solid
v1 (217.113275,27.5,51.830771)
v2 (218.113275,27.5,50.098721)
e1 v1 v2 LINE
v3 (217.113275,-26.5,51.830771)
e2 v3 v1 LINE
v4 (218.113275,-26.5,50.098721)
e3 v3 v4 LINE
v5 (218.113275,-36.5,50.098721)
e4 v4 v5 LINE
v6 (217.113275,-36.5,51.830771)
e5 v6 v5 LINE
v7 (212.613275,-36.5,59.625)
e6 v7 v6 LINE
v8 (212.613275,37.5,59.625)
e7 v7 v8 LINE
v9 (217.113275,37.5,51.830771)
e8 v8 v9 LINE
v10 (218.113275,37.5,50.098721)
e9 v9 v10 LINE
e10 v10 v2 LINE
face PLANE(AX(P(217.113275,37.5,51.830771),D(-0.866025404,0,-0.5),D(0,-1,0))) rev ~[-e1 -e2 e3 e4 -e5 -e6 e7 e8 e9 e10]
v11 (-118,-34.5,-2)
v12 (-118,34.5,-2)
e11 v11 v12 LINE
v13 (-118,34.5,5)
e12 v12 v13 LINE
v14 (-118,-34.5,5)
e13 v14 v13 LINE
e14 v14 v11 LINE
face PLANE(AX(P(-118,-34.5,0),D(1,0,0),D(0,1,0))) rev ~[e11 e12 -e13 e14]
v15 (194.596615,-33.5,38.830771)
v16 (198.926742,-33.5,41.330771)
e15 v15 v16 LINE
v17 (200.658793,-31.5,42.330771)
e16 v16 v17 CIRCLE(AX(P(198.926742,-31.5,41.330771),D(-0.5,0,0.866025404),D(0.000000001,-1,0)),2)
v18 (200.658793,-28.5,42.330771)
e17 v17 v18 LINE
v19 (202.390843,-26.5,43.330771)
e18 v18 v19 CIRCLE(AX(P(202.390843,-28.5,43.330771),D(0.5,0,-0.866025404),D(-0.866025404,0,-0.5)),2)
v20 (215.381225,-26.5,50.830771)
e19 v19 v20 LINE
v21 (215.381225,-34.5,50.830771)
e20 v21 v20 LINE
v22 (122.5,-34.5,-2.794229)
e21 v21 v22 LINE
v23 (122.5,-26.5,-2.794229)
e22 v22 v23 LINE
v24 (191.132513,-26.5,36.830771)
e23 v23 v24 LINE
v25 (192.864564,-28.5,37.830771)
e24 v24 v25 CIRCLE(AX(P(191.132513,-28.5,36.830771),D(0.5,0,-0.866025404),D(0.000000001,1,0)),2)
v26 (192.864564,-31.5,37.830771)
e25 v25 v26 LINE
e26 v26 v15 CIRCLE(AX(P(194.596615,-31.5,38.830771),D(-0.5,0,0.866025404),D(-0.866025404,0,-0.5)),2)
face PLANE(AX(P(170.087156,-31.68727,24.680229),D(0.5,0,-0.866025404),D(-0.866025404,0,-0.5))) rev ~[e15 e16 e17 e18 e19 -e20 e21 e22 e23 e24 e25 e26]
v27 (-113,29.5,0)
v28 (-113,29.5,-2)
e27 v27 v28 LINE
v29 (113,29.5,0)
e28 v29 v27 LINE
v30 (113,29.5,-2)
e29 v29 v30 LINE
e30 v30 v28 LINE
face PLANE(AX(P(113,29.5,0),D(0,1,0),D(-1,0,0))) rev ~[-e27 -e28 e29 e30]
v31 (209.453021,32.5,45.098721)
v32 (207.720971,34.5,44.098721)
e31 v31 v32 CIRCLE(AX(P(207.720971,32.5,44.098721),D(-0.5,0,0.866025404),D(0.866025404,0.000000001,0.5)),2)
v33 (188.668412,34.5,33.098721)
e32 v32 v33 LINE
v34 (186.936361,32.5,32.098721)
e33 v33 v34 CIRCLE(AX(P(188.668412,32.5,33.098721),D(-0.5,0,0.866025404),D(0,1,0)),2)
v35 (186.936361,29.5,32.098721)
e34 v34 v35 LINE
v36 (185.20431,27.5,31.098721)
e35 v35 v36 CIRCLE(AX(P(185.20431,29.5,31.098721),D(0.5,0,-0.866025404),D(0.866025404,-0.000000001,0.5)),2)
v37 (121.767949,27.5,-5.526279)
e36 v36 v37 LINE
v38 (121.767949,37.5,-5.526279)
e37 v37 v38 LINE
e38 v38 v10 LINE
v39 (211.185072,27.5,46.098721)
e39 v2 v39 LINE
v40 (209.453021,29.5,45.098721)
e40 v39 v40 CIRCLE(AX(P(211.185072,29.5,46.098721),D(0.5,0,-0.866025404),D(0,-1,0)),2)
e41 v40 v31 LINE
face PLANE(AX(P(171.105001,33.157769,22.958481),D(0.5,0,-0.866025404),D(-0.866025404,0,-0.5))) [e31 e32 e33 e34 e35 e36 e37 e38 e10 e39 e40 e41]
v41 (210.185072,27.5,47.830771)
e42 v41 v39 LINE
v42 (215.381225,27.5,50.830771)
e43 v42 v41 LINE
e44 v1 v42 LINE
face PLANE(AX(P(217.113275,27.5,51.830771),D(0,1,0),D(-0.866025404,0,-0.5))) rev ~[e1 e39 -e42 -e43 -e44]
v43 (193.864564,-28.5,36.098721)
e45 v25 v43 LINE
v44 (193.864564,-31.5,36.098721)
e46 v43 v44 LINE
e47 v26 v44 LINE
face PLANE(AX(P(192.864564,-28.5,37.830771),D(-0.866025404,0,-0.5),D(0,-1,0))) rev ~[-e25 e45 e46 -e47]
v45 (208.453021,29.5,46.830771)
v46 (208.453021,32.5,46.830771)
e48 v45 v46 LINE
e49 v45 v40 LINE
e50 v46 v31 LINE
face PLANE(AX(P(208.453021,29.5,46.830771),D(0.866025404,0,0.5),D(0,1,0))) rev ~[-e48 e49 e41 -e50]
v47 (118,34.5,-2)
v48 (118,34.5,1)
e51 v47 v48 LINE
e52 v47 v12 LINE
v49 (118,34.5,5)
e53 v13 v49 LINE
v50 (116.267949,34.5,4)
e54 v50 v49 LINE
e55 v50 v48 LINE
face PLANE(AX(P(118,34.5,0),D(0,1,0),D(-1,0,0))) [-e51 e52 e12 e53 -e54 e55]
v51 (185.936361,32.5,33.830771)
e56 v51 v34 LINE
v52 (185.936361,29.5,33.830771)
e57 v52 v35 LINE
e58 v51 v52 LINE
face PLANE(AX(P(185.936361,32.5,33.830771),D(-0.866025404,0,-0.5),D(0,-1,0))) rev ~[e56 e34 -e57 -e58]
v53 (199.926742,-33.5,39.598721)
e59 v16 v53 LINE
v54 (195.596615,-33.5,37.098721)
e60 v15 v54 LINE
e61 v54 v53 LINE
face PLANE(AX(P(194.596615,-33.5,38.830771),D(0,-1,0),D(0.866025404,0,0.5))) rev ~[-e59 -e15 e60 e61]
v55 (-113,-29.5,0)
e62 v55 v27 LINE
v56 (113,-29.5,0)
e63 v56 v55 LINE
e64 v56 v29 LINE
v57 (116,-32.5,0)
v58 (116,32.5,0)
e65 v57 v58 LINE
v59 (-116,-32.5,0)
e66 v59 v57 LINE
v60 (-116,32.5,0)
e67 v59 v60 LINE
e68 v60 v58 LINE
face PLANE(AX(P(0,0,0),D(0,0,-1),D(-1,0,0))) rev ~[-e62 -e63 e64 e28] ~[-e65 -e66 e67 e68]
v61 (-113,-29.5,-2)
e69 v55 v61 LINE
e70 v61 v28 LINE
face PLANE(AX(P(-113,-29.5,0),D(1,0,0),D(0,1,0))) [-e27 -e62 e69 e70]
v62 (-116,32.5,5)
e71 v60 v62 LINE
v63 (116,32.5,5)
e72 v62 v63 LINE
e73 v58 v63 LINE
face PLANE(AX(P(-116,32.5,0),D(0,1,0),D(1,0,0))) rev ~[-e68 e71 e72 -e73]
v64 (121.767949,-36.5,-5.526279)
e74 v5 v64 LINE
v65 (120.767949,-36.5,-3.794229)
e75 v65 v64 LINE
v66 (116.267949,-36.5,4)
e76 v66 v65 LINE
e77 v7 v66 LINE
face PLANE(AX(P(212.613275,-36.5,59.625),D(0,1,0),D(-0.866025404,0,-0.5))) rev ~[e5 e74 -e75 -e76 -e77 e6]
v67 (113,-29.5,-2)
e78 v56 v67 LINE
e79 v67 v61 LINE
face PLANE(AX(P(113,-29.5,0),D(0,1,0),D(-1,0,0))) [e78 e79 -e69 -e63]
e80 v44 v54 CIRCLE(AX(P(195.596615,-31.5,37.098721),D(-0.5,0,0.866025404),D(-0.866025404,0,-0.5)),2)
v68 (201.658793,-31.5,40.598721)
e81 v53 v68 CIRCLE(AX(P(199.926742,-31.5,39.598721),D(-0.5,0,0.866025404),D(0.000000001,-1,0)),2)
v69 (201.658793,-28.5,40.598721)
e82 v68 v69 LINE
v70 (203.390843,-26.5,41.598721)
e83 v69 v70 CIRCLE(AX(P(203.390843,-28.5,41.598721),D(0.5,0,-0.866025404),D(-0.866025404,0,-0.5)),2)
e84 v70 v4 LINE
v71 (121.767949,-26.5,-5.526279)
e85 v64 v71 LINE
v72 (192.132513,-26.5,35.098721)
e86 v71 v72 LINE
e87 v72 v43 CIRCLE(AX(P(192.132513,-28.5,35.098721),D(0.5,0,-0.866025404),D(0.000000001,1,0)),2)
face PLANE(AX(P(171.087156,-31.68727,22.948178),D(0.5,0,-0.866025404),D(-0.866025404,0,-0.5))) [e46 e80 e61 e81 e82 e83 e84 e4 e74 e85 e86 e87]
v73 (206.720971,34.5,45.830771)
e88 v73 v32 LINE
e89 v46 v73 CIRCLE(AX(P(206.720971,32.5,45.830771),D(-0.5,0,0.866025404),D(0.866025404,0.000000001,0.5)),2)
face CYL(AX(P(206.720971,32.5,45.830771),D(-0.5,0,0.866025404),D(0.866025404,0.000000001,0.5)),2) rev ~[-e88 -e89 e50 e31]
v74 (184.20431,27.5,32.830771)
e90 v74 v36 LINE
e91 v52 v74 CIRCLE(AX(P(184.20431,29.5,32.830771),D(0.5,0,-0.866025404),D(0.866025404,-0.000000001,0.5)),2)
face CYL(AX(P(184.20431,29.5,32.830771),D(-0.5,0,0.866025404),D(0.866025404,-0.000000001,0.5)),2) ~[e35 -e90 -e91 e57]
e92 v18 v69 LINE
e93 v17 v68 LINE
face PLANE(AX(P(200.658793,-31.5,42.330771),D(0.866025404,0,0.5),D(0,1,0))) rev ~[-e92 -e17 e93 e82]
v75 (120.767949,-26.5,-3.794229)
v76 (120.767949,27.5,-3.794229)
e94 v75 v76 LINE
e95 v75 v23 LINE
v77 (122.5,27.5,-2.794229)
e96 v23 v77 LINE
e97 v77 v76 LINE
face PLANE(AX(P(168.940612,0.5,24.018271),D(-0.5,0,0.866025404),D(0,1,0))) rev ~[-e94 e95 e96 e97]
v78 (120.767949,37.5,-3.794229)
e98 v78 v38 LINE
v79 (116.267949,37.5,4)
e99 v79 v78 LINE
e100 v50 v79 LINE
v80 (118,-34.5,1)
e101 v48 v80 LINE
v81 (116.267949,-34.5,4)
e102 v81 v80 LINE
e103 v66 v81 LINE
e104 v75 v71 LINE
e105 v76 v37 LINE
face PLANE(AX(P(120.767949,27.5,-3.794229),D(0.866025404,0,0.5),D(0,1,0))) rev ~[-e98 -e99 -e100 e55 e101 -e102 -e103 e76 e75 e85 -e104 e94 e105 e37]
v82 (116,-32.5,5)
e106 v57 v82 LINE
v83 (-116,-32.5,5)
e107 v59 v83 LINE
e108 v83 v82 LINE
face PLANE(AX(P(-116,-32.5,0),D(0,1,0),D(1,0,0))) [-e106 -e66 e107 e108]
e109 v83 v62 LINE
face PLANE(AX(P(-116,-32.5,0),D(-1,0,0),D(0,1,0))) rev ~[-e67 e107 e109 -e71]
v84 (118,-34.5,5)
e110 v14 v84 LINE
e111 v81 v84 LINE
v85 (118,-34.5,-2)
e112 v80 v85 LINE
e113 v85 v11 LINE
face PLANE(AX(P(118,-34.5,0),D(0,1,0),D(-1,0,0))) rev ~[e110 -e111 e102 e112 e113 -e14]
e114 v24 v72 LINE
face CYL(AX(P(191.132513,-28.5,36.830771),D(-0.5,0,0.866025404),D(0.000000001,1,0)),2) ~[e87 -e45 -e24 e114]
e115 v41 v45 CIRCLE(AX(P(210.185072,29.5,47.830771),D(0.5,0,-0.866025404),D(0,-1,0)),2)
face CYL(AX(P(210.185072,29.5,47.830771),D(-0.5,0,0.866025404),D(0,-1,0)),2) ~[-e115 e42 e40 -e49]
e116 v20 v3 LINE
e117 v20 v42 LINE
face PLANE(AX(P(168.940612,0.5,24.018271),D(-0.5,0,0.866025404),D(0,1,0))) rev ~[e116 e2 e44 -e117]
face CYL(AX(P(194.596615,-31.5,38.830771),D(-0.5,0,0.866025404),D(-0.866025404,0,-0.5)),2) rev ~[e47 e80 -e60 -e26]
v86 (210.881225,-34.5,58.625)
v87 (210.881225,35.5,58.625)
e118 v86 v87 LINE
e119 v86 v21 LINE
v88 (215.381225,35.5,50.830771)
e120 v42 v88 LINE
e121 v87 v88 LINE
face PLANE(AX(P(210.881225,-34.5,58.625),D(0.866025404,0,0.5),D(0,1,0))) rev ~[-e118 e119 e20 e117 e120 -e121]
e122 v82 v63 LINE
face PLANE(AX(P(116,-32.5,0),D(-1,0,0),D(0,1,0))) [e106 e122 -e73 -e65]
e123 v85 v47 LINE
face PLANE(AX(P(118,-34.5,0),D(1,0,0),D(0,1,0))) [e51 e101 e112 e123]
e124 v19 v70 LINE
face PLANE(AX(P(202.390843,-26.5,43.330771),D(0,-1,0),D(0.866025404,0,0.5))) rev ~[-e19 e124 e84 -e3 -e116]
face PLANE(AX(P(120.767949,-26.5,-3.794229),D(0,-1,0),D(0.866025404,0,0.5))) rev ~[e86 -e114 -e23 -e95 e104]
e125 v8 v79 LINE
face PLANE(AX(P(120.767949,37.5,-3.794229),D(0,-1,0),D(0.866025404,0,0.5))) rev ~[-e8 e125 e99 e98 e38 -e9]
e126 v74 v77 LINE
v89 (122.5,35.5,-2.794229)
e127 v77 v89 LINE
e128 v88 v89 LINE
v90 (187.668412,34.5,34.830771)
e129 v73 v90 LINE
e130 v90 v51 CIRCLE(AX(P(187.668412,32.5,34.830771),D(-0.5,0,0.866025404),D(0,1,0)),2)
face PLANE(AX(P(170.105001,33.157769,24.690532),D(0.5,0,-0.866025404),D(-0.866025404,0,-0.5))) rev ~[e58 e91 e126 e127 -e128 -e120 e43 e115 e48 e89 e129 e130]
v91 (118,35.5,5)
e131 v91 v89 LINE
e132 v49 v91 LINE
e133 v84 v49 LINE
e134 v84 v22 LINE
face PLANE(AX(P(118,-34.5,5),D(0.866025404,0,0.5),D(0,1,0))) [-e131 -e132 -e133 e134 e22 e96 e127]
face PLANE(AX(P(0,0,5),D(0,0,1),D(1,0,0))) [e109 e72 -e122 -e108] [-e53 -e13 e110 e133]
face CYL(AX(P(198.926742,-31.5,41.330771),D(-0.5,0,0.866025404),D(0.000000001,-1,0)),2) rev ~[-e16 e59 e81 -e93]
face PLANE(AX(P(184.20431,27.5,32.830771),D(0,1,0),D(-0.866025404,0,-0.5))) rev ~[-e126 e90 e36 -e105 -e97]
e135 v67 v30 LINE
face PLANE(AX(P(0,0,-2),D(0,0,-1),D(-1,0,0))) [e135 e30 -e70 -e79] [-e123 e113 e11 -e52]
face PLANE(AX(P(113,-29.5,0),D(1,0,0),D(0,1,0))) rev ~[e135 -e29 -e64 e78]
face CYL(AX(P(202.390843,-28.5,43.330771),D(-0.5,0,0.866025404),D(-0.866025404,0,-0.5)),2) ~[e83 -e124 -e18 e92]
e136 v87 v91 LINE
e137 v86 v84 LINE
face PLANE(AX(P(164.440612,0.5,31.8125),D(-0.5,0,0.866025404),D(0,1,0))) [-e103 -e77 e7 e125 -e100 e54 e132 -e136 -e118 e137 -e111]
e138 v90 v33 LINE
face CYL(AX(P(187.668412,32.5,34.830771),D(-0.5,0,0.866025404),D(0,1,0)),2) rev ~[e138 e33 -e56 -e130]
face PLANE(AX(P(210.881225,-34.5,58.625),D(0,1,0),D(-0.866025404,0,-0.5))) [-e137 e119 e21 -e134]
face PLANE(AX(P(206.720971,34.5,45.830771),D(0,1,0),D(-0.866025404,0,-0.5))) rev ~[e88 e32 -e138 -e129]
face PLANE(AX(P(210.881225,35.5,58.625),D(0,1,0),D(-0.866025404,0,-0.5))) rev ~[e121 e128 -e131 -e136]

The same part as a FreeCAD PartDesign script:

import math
import FreeCAD as App
import Part
import Sketcher

V = App.Vector

doc = App.newDocument("Part")
body = doc.addObject("PartDesign::Body", "Body")

# Sketch on XY plane
sketch1 = body.newObject("Sketcher::SketchObject", "Sketch")
sketch1.AttachmentSupport = (doc.getObject("XY_Plane"), [""])
sketch1.MapMode = "FlatFace"
sketch1.addGeometry([
    Part.LineSegment(V(-118, 34, 0), V(-118, -34, 0)),  # 0
    Part.LineSegment(V(-118, -34, 0), V(118, -34, 0)),  # 1
    Part.LineSegment(V(118, -34, 0), V(118, 34, 0)),  # 2
    Part.LineSegment(V(118, 34, 0), V(-118, 34, 0)),  # 3
    Part.LineSegment(V(116, -32, 0), V(-116, -32, 0)),  # 4
    Part.LineSegment(V(-116, -32, 0), V(-116, 32, 0)),  # 5
    Part.LineSegment(V(-116, 32, 0), V(116, 32, 0)),  # 6
    Part.LineSegment(V(116, 32, 0), V(116, -32, 0)),  # 7
], False)
sketch1.addConstraint([
    Sketcher.Constraint("Coincident", 0, 2, 1, 1),
    Sketcher.Constraint("Coincident", 1, 2, 2, 1),
    Sketcher.Constraint("Coincident", 2, 2, 3, 1),
    Sketcher.Constraint("Coincident", 3, 2, 0, 1),
    Sketcher.Constraint("Coincident", 4, 2, 5, 1),
    Sketcher.Constraint("Coincident", 5, 2, 6, 1),
    Sketcher.Constraint("Coincident", 6, 2, 7, 1),
    Sketcher.Constraint("Coincident", 7, 2, 4, 1),
    Sketcher.Constraint("Vertical", 0),
    Sketcher.Constraint("Horizontal", 1),
    Sketcher.Constraint("Vertical", 2),
    Sketcher.Constraint("Horizontal", 3),
    Sketcher.Constraint("Horizontal", 4),
    Sketcher.Constraint("Vertical", 5),
    Sketcher.Constraint("Horizontal", 6),
    Sketcher.Constraint("Vertical", 7),
    Sketcher.Constraint("Symmetric", 0, 2, 2, 2, -1, 1),
    Sketcher.Constraint("Symmetric", 4, 2, 6, 2, -1, 1),
    Sketcher.Constraint("DistanceX", 1, 1, 1, 2, 236.0),
    Sketcher.Constraint("DistanceX", 4, 2, 4, 1, 232.0),
    Sketcher.Constraint("DistanceY", 0, 2, 0, 1, 69.0),
    Sketcher.Constraint("DistanceY", 5, 1, 5, 2, 65.0),
])
pad1 = body.newObject("PartDesign::Pad", "Pad")
pad1.Profile = sketch1
pad1.Length = 5

# Sketch on XY plane
sketch2 = body.newObject("Sketcher::SketchObject", "Sketch001")
sketch2.AttachmentSupport = (doc.getObject("XY_Plane"), [""])
sketch2.MapMode = "FlatFace"
sketch2.addGeometry([
    Part.LineSegment(V(118, 34, 0), V(118, -34, 0)),  # 0
    Part.LineSegment(V(118, -34, 0), V(-118, -34, 0)),  # 1
    Part.LineSegment(V(-118, -34, 0), V(-118, 34, 0)),  # 2
    Part.LineSegment(V(-118, 34, 0), V(118, 34, 0)),  # 3
    Part.LineSegment(V(-113, -30, 0), V(113, -30, 0)),  # 4
    Part.LineSegment(V(113, -30, 0), V(113, 30, 0)),  # 5
    Part.LineSegment(V(113, 30, 0), V(-113, 30, 0)),  # 6
    Part.LineSegment(V(-113, 30, 0), V(-113, -30, 0)),  # 7
], False)
sketch2.addConstraint([
    Sketcher.Constraint("Coincident", 0, 2, 1, 1),
    Sketcher.Constraint("Coincident", 1, 2, 2, 1),
    Sketcher.Constraint("Coincident", 2, 2, 3, 1),
    Sketcher.Constraint("Coincident", 3, 2, 0, 1),
    Sketcher.Constraint("Coincident", 4, 2, 5, 1),
    Sketcher.Constraint("Coincident", 5, 2, 6, 1),
    Sketcher.Constraint("Coincident", 6, 2, 7, 1),
    Sketcher.Constraint("Coincident", 7, 2, 4, 1),
    Sketcher.Constraint("Vertical", 0),
    Sketcher.Constraint("Horizontal", 1),
    Sketcher.Constraint("Vertical", 2),
    Sketcher.Constraint("Horizontal", 3),
    Sketcher.Constraint("Horizontal", 4),
    Sketcher.Constraint("Vertical", 5),
    Sketcher.Constraint("Horizontal", 6),
    Sketcher.Constraint("Vertical", 7),
    Sketcher.Constraint("Symmetric", 0, 2, 2, 2, -1, 1),
    Sketcher.Constraint("Symmetric", 4, 2, 6, 2, -1, 1),
    Sketcher.Constraint("DistanceX", 1, 2, 1, 1, 236.0),
    Sketcher.Constraint("DistanceX", 4, 1, 4, 2, 226.0),
    Sketcher.Constraint("DistanceY", 0, 2, 0, 1, 69.0),
    Sketcher.Constraint("DistanceY", 5, 1, 5, 2, 59.0),
])
pad2 = body.newObject("PartDesign::Pad", "Pad001")
pad2.Profile = sketch2
pad2.Length = 2
pad2.Reversed = True

# Sketch on an angled plane
sketch3 = body.newObject("Sketcher::SketchObject", "Sketch002")
sketch3.Placement = App.Placement(V(27.334936, 0, -47.345499), App.Rotation(V(0, 1, 0), V(-0.866025404, 0, -0.5), V(-0.5, 0, 0.866025404), "ZXY"))
sketch3.addGeometry([
    Part.LineSegment(V(-36, -103, 0), V(-36, -214, 0)),  # 0
    Part.LineSegment(V(-36, -214, 0), V(38, -214, 0)),  # 1
    Part.LineSegment(V(38, -214, 0), V(38, -103, 0)),  # 2
    Part.LineSegment(V(38, -103, 0), V(-36, -103, 0)),  # 3
    Part.LineSegment(V(36, -212, 0), V(-34, -212, 0)),  # 4
    Part.LineSegment(V(-34, -212, 0), V(-34, -105, 0)),  # 5
    Part.LineSegment(V(-34, -105, 0), V(36, -105, 0)),  # 6
    Part.LineSegment(V(36, -105, 0), V(36, -212, 0)),  # 7
], False)
sketch3.addConstraint([
    Sketcher.Constraint("Coincident", 0, 2, 1, 1),
    Sketcher.Constraint("Coincident", 1, 2, 2, 1),
    Sketcher.Constraint("Coincident", 2, 2, 3, 1),
    Sketcher.Constraint("Coincident", 3, 2, 0, 1),
    Sketcher.Constraint("Coincident", 4, 2, 5, 1),
    Sketcher.Constraint("Coincident", 5, 2, 6, 1),
    Sketcher.Constraint("Coincident", 6, 2, 7, 1),
    Sketcher.Constraint("Coincident", 7, 2, 4, 1),
    Sketcher.Constraint("Vertical", 0),
    Sketcher.Constraint("Horizontal", 1),
    Sketcher.Constraint("Vertical", 2),
    Sketcher.Constraint("Horizontal", 3),
    Sketcher.Constraint("Horizontal", 4),
    Sketcher.Constraint("Vertical", 5),
    Sketcher.Constraint("Horizontal", 6),
    Sketcher.Constraint("Vertical", 7),
    Sketcher.Constraint("DistanceX", 1, 1, 1, 2, 74.0),
    Sketcher.Constraint("DistanceX", 4, 2, 4, 1, 70.0),
    Sketcher.Constraint("DistanceX", 0, 2, 4, 2, 2.0),
    Sketcher.Constraint("DistanceY", 0, 2, 4, 2, 2.0),
    Sketcher.Constraint("DistanceY", 5, 2, 3, 2, 2.0),
    Sketcher.Constraint("DistanceY", 0, 2, 0, 1, 111.25),
    Sketcher.Constraint("DistanceX", 0, 2, -1, 1, 36.5),
    Sketcher.Constraint("DistanceY", 0, 2, -1, 1, 213.940998),
])
pad3 = body.newObject("PartDesign::Pad", "Pad002")
pad3.Profile = sketch3
pad3.Length = 9
pad3.Reversed = True

# Sketch on an angled plane
sketch4 = body.newObject("Sketcher::SketchObject", "Sketch003")
sketch4.Placement = App.Placement(V(31.834936, 0, -55.139727), App.Rotation(V(-0.866025404, 0, -0.5), V(0, 1, 0), V(0.5, 0, -0.866025404), "ZXY"))
sketch4.addGeometry([
    Part.LineSegment(V(-213.9, 27.5, 0), V(-205.9, 27.5, 0)),  # 0
    Part.ArcOfCircle(Part.Circle(V(-205.9, 29.5, 0), V(0, 0, 1), 2), math.radians(-90), math.radians(0)),  # 1
    Part.LineSegment(V(-203.9, 29.5, 0), V(-203.9, 32.5, 0)),  # 2
    Part.ArcOfCircle(Part.Circle(V(-201.9, 32.5, 0), V(0, 0, 1), 2), math.radians(90), math.radians(180)),  # 3
    Part.LineSegment(V(-201.9, 34.5, 0), V(-179.9, 34.5, 0)),  # 4
    Part.ArcOfCircle(Part.Circle(V(-179.9, 32.5, 0), V(0, 0, 1), 2), math.radians(0), math.radians(90)),  # 5
    Part.LineSegment(V(-177.9, 32.5, 0), V(-177.9, 29.5, 0)),  # 6
    Part.ArcOfCircle(Part.Circle(V(-175.9, 29.5, 0), V(0, 0, 1), 2), math.radians(-180), math.radians(-90)),  # 7
    Part.LineSegment(V(-175.9, 27.5, 0), V(-102.7, 27.5, 0)),  # 8
    Part.LineSegment(V(-102.7, 27.5, 0), V(-102.7, 37.5, 0)),  # 9
    Part.LineSegment(V(-102.7, 37.5, 0), V(-213.9, 37.5, 0)),  # 10
    Part.LineSegment(V(-213.9, 37.5, 0), V(-213.9, 27.5, 0)),  # 11
    Part.LineSegment(V(-102.7, -36.5, 0), V(-102.7, -26.5, 0)),  # 12
    Part.LineSegment(V(-102.7, -26.5, 0), V(-183.9, -26.5, 0)),  # 13
    Part.ArcOfCircle(Part.Circle(V(-183.9, -28.5, 0), V(0, 0, 1), 2), math.radians(90), math.radians(180)),  # 14
    Part.LineSegment(V(-185.9, -28.5, 0), V(-185.9, -31.5, 0)),  # 15
    Part.ArcOfCircle(Part.Circle(V(-187.9, -31.5, 0), V(0, 0, 1), 2), math.radians(-90), math.radians(0)),  # 16
    Part.LineSegment(V(-187.9, -33.5, 0), V(-192.9, -33.5, 0)),  # 17
    Part.ArcOfCircle(Part.Circle(V(-192.9, -31.5, 0), V(0, 0, 1), 2), math.radians(-180), math.radians(-90)),  # 18
    Part.LineSegment(V(-194.9, -31.5, 0), V(-194.9, -28.5, 0)),  # 19
    Part.ArcOfCircle(Part.Circle(V(-196.9, -28.5, 0), V(0, 0, 1), 2), math.radians(0), math.radians(90)),  # 20
    Part.LineSegment(V(-196.9, -26.5, 0), V(-213.9, -26.5, 0)),  # 21
    Part.LineSegment(V(-213.9, -26.5, 0), V(-213.9, -36.5, 0)),  # 22
    Part.LineSegment(V(-213.9, -36.5, 0), V(-102.7, -36.5, 0)),  # 23
], False)
sketch4.addConstraint([
    Sketcher.Constraint("Tangent", 0, 2, 1, 1),
    Sketcher.Constraint("Tangent", 1, 2, 2, 1),
    Sketcher.Constraint("Tangent", 2, 2, 3, 2),
    Sketcher.Constraint("Tangent", 3, 1, 4, 1),
    Sketcher.Constraint("Tangent", 4, 2, 5, 2),
    Sketcher.Constraint("Tangent", 5, 1, 6, 1),
    Sketcher.Constraint("Tangent", 6, 2, 7, 1),
    Sketcher.Constraint("Tangent", 7, 2, 8, 1),
    Sketcher.Constraint("Coincident", 8, 2, 9, 1),
    Sketcher.Constraint("Coincident", 9, 2, 10, 1),
    Sketcher.Constraint("Coincident", 10, 2, 11, 1),
    Sketcher.Constraint("Coincident", 11, 2, 0, 1),
    Sketcher.Constraint("Coincident", 12, 2, 13, 1),
    Sketcher.Constraint("Tangent", 13, 2, 14, 1),
    Sketcher.Constraint("Tangent", 14, 2, 15, 1),
    Sketcher.Constraint("Tangent", 15, 2, 16, 2),
    Sketcher.Constraint("Tangent", 16, 1, 17, 1),
    Sketcher.Constraint("Tangent", 17, 2, 18, 2),
    Sketcher.Constraint("Tangent", 18, 1, 19, 1),
    Sketcher.Constraint("Tangent", 19, 2, 20, 1),
    Sketcher.Constraint("Tangent", 20, 2, 21, 1),
    Sketcher.Constraint("Coincident", 21, 2, 22, 1),
    Sketcher.Constraint("Coincident", 22, 2, 23, 1),
    Sketcher.Constraint("Coincident", 23, 2, 12, 1),
    Sketcher.Constraint("Horizontal", 0),
    Sketcher.Constraint("Vertical", 2),
    Sketcher.Constraint("Horizontal", 4),
    Sketcher.Constraint("Vertical", 6),
    Sketcher.Constraint("Horizontal", 8),
    Sketcher.Constraint("Vertical", 9),
    Sketcher.Constraint("Horizontal", 10),
    Sketcher.Constraint("Vertical", 11),
    Sketcher.Constraint("Vertical", 12),
    Sketcher.Constraint("Horizontal", 13),
    Sketcher.Constraint("Vertical", 15),
    Sketcher.Constraint("Horizontal", 17),
    Sketcher.Constraint("Vertical", 19),
    Sketcher.Constraint("Horizontal", 21),
    Sketcher.Constraint("Vertical", 22),
    Sketcher.Constraint("Horizontal", 23),
    Sketcher.Constraint("Equal", 1, 3),
    Sketcher.Constraint("Equal", 3, 5),
    Sketcher.Constraint("Equal", 5, 7),
    Sketcher.Constraint("Equal", 7, 14),
    Sketcher.Constraint("Equal", 14, 16),
    Sketcher.Constraint("Equal", 16, 18),
    Sketcher.Constraint("Equal", 18, 20),
    Sketcher.Constraint("Horizontal", 1, 3, 7, 3),
    Sketcher.Constraint("Horizontal", 14, 3, 20, 3),
    Sketcher.Constraint("Vertical", 9, 2, 12, 2),
    Sketcher.Constraint("Vertical", 11, 2, 21, 2),
    Sketcher.Constraint("Equal", 11, 12),
    Sketcher.Constraint("Equal", 6, 15),
    Sketcher.Constraint("Radius", 1, 2.0),
    Sketcher.Constraint("DistanceX", 0, 1, 0, 2, 8.0),
    Sketcher.Constraint("DistanceX", 4, 1, 4, 2, 22.0),
    Sketcher.Constraint("DistanceX", 17, 2, 17, 1, 5.0),
    Sketcher.Constraint("DistanceX", 21, 2, 21, 1, 17.0),
    Sketcher.Constraint("DistanceY", 2, 1, 2, 2, 3.0),
    Sketcher.Constraint("DistanceY", 9, 1, 9, 2, 10.0),
    Sketcher.Constraint("DistanceY", 14, 3, 7, 3, 58.0),
    Sketcher.Constraint("DistanceX", 8, 1, 8, 2, 73.25),
    Sketcher.Constraint("DistanceY", -1, 1, 1, 3, 29.5),
    Sketcher.Constraint("DistanceX", 1, 3, -1, 1, 205.940998),
])
pad4 = body.newObject("PartDesign::Pad", "Pad003")
pad4.Profile = sketch4
pad4.Length = 2

doc.recompute()
